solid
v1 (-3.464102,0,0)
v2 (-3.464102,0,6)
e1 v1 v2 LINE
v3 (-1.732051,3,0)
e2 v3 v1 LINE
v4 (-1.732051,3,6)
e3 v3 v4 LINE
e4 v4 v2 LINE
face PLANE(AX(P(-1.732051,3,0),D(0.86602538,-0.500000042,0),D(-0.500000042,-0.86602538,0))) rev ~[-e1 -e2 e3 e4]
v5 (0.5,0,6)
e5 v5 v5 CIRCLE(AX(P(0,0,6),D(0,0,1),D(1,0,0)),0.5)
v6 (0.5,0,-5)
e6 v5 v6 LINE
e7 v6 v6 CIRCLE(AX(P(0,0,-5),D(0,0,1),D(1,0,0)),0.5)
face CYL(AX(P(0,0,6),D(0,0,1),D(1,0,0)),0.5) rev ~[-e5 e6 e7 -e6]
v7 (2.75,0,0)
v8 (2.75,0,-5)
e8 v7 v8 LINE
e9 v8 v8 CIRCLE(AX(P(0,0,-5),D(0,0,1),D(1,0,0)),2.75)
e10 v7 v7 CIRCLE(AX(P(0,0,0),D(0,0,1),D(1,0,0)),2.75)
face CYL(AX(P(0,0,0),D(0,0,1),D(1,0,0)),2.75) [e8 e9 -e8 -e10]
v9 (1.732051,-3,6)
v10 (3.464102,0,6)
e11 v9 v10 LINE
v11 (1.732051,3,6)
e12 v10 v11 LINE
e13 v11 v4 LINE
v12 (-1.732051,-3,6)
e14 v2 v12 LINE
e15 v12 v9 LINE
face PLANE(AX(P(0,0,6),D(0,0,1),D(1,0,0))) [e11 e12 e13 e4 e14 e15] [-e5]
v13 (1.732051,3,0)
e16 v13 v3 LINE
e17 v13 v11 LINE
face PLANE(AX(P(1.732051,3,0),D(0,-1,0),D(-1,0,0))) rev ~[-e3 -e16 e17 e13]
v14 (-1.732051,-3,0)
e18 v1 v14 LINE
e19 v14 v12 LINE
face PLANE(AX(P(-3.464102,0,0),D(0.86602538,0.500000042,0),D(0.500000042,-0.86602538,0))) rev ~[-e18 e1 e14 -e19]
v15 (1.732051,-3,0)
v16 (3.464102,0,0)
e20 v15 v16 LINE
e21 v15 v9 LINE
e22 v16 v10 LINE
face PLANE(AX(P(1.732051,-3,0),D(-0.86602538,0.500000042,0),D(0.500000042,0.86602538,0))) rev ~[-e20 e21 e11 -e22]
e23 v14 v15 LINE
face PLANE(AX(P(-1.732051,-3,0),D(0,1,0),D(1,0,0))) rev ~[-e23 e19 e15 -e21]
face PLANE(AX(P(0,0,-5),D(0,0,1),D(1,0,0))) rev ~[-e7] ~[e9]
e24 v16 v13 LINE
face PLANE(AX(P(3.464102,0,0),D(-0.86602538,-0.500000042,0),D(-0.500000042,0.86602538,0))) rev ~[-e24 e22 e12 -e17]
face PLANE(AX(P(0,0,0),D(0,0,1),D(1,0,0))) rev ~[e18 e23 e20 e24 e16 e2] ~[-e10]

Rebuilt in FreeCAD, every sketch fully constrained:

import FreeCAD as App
import Part
import Sketcher

V = App.Vector
Q = App.Units.Quantity


def add_polygon(sketch, points):
    """Adds a closed chain of lines whose ends are joined by coincident constraints."""
    first, n = sketch.GeometryCount, len(points)
    for a, b in zip(points, points[1:] + points[:1]):
        sketch.addGeometry(Part.LineSegment(App.Vector(*a, 0), App.Vector(*b, 0)), False)
    for i in range(n):
        sketch.addConstraint(Sketcher.Constraint("Coincident", first + i, 2, first + (i + 1) % n, 1))

doc = App.newDocument("Part")
body = doc.addObject("PartDesign::Body", "Body")

# Sketch on XY plane
sketch1 = body.newObject("Sketcher::SketchObject", "Sketch")
sketch1.AttachmentSupport = (doc.getObject("XY_Plane"), [""])
sketch1.MapMode = "FlatFace"
sketch1.addGeometry(Part.Circle(V(0, 0, 0), V(0, 0, 1), 2.75), False)
sketch1.addConstraint([
    Sketcher.Constraint("Coincident", 0, 3, -1, 1),
    Sketcher.Constraint("Diameter", 0, Q("5.5 mm")),
])
pad1 = body.newObject("PartDesign::Pad", "Pad")
pad1.Profile = sketch1
pad1.Length = 5
pad1.Reversed = True

# Sketch on XY plane
sketch2 = body.newObject("Sketcher::SketchObject", "Sketch001")
sketch2.AttachmentSupport = (doc.getObject("XY_Plane"), [""])
sketch2.MapMode = "FlatFace"
add_polygon(sketch2, [(1.732051, -3), (3.464102, 0), (1.732051, 3), (-1.732051, 3), (-3.464102, 0), (-1.732051, -3)])  # lines 0-5
sketch2.addConstraint([
    Sketcher.Constraint("Horizontal", 2),
    Sketcher.Constraint("Horizontal", 5),
    Sketcher.Constraint("Symmetric", 0, 2, 3, 2, -1, 1),
    Sketcher.Constraint("Symmetric", 1, 2, 4, 2, -1, 1),
    Sketcher.Constraint("PointOnObject", 0, 2, -1),
    Sketcher.Constraint("Parallel", 0, 3),
    Sketcher.Constraint("Vertical", 2, 2, 4, 2),
    Sketcher.Constraint("Angle", 0, Q("59.999997 deg")),
    Sketcher.Constraint("DistanceY", -1, 1, 1, 2, Q("3 mm")),
    Sketcher.Constraint("DistanceX", 2, 2, 2, 1, Q("3.464102 mm")),
])
pad2 = body.newObject("PartDesign::Pad", "Pad001")
pad2.Profile = sketch2
pad2.Length = 6

# Sketch on XY plane
sketch3 = body.newObject("Sketcher::SketchObject", "Sketch002")
sketch3.AttachmentSupport = (doc.getObject("XY_Plane"), [""])
sketch3.MapMode = "FlatFace"
sketch3.AttachmentOffset = App.Placement(V(0, 0, 6), App.Rotation())
sketch3.addGeometry(Part.Circle(V(0, 0, 0), V(0, 0, 1), 0.5), False)
sketch3.addConstraint([
    Sketcher.Constraint("Coincident", 0, 3, -1, 1),
    Sketcher.Constraint("Diameter", 0, Q("1 mm")),
])
pocket1 = body.newObject("PartDesign::Pocket", "Pocket")
pocket1.Profile = sketch3
pocket1.Type = "ThroughAll"

doc.recompute()
